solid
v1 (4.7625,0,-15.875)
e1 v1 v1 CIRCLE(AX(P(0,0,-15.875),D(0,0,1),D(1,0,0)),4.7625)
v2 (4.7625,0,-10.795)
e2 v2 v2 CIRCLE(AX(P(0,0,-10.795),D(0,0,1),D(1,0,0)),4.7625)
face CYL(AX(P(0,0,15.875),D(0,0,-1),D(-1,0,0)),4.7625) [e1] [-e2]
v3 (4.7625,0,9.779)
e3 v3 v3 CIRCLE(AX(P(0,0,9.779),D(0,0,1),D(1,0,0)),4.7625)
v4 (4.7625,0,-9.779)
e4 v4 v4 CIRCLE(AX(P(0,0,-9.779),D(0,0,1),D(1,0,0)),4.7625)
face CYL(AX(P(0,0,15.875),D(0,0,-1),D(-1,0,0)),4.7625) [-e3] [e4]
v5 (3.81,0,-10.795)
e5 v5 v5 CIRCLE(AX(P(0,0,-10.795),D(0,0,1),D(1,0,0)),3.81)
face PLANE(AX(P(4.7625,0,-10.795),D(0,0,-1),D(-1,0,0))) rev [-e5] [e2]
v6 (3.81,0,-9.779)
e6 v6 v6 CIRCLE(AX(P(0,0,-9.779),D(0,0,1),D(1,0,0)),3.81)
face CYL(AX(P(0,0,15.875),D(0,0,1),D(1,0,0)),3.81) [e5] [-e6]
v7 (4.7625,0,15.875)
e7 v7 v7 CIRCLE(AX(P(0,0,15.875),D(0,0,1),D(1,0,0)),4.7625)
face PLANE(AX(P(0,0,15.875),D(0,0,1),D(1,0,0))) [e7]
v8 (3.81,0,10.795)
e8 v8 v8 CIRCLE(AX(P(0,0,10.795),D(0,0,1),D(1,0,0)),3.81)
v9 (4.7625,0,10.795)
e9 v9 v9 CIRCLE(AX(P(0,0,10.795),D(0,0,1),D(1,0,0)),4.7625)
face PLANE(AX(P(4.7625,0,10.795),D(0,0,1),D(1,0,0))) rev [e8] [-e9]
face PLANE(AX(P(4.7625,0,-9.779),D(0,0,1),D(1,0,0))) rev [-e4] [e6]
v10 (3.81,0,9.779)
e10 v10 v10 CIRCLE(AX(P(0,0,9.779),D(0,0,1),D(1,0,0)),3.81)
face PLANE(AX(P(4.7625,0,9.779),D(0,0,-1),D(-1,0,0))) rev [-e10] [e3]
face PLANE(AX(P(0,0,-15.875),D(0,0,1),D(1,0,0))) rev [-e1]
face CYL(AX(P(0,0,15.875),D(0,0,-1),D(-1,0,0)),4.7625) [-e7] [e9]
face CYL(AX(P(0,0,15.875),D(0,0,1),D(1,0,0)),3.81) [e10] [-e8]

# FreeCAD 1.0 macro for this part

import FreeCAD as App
import Part
import Sketcher

V = App.Vector
Q = App.Units.Quantity


def add_polygon(sketch, points):
    """Adds a closed chain of lines whose ends are joined by coincident constraints."""
    first, n = sketch.GeometryCount, len(points)
    for a, b in zip(points, points[1:] + points[:1]):
        sketch.addGeometry(Part.LineSegment(App.Vector(*a, 0), App.Vector(*b, 0)), False)
    for i in range(n):
        sketch.addConstraint(Sketcher.Constraint("Coincident", first + i, 2, first + (i + 1) % n, 1))

doc = App.newDocument("Part")
params = doc.addObject("Spreadsheet::Sheet", "Params")
for row, (alias, value) in enumerate([
    ("sketch1_diameter", "0.375 in"),
    ("pad1_length", "1.25 in"),
    ("sketch2_height", "0.04 in"),
    ("groove_angle", "360 deg"),
], start=1):
    params.set(f"A{row}", alias)
    params.set(f"B{row}", "=" + value)
    params.setAlias(f"B{row}", alias)

body = doc.addObject("PartDesign::Body", "Body")

# Sketch on XY plane
sketch1 = body.newObject("Sketcher::SketchObject", "Sketch")
sketch1.AttachmentSupport = (doc.getObject("XY_Plane"), [""])
sketch1.MapMode = "FlatFace"
sketch1.addGeometry(Part.Circle(V(0, 0, 0), V(0, 0, 1), 4.7625), False)
sketch1.addConstraint([
    Sketcher.Constraint("Coincident", 0, 3, -1, 1),
    Sketcher.Constraint("Diameter", 0, Q("0.375 in")),
])
sketch1.setExpression("Constraints[1]", "Params.sketch1_diameter")
pad1 = body.newObject("PartDesign::Pad", "Pad")
pad1.Profile = sketch1
pad1.setExpression("Length", "Params.pad1_length")
pad1.Midplane = True

# Sketch on XZ plane
sketch2 = body.newObject("Sketcher::SketchObject", "Sketch001")
sketch2.AttachmentSupport = (doc.getObject("XZ_Plane"), [""])
sketch2.MapMode = "FlatFace"
add_polygon(sketch2, [(3.81, -10.795), (3.81, -9.779), (4.7625, -9.779), (4.7625, -10.795)])  # lines 0-3
add_polygon(sketch2, [(3.81, 9.779), (3.81, 10.795), (4.7625, 10.795), (4.7625, 9.779)])  # lines 4-7
sketch2.addConstraint([
    Sketcher.Constraint("Vertical", 0),
    Sketcher.Constraint("Horizontal", 1),
    Sketcher.Constraint("Vertical", 2),
    Sketcher.Constraint("Horizontal", 3),
    Sketcher.Constraint("Vertical", 4),
    Sketcher.Constraint("Horizontal", 5),
    Sketcher.Constraint("Vertical", 6),
    Sketcher.Constraint("Horizontal", 7),
    Sketcher.Constraint("Symmetric", 3, 2, 4, 2, -1),
    Sketcher.Constraint("Symmetric", 1, 2, 6, 2, -1),
    Sketcher.Constraint("DistanceY", 0, 1, 0, 2, Q("0.04 in")),
    Sketcher.Constraint("DistanceX", -1, 1, 0, 2, Q("0.15 in")),
    Sketcher.Constraint("DistanceY", 0, 2, 4, 2, Q("0.81 in")),
    Sketcher.Constraint("DistanceX", 1, 1, 1, 2, Q("0.0375 in")),
])
sketch2.setExpression("Constraints[18]", "Params.sketch2_height")
groove = body.newObject("PartDesign::Groove", "Groove")
groove.Profile = sketch2
groove.ReferenceAxis = (sketch2, ["V_Axis"])
groove.setExpression("Angle", "Params.groove_angle")

doc.recompute()
